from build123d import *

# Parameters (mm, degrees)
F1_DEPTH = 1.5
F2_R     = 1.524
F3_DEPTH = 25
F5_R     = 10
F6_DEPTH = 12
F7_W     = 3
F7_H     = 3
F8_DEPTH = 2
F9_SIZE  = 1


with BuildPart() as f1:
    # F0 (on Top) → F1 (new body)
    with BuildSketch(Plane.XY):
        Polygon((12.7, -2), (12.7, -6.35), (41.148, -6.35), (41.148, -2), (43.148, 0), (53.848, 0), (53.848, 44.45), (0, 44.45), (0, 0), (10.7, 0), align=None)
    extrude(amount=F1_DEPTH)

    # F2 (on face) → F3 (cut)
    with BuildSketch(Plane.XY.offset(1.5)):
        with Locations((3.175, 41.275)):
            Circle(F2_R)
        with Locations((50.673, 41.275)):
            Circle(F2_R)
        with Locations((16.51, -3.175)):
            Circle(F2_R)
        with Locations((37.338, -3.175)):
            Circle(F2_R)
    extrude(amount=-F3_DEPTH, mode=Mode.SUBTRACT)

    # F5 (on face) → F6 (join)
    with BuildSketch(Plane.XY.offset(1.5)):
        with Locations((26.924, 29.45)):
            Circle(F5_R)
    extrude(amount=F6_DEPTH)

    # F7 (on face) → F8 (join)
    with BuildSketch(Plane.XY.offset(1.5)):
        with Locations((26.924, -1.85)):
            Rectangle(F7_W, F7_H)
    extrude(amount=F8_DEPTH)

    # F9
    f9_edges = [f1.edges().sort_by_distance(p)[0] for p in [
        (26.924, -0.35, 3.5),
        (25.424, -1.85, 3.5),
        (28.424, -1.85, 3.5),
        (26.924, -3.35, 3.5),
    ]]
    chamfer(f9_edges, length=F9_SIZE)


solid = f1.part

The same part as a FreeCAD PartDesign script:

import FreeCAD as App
import Part
import Sketcher

V = App.Vector


def edges_at(feature, points):
    """Names of the edges that pass closest to the given points."""
    edges = feature.Shape.Edges
    near = lambda p: min(range(len(edges)), key=lambda i: edges[i].distToShape(Part.Vertex(*p))[0])
    return sorted({f"Edge{near(p) + 1}" for p in points})

doc = App.newDocument("Part")
body = doc.addObject("PartDesign::Body", "Body")

# Sketch on XY plane
sketch1 = body.newObject("Sketcher::SketchObject", "Sketch")
sketch1.AttachmentSupport = (doc.getObject("XY_Plane"), [""])
sketch1.MapMode = "FlatFace"
sketch1.addGeometry([
    Part.LineSegment(V(12.7, -2, 0), V(12.7, -6.3, 0)),  # 0
    Part.LineSegment(V(12.7, -6.3, 0), V(41.1, -6.3, 0)),  # 1
    Part.LineSegment(V(41.1, -6.3, 0), V(41.1, -2, 0)),  # 2
    Part.LineSegment(V(41.1, -2, 0), V(43.1, 0, 0)),  # 3
    Part.LineSegment(V(43.1, 0, 0), V(53.8, 0, 0)),  # 4
    Part.LineSegment(V(53.8, 0, 0), V(53.8, 44.5, 0)),  # 5
    Part.LineSegment(V(53.8, 44.5, 0), V(0, 44.5, 0)),  # 6
    Part.LineSegment(V(0, 44.5, 0), V(0, 0, 0)),  # 7
    Part.LineSegment(V(0, 0, 0), V(10.7, 0, 0)),  # 8
    Part.LineSegment(V(10.7, 0, 0), V(12.7, -2, 0)),  # 9
], False)
sketch1.addConstraint([
    Sketcher.Constraint("Coincident", 0, 2, 1, 1),
    Sketcher.Constraint("Coincident", 1, 2, 2, 1),
    Sketcher.Constraint("Coincident", 2, 2, 3, 1),
    Sketcher.Constraint("Coincident", 3, 2, 4, 1),
    Sketcher.Constraint("Coincident", 4, 2, 5, 1),
    Sketcher.Constraint("Coincident", 5, 2, 6, 1),
    Sketcher.Constraint("Coincident", 6, 2, 7, 1),
    Sketcher.Constraint("Coincident", 7, 2, 8, 1),
    Sketcher.Constraint("Coincident", 8, 2, 9, 1),
    Sketcher.Constraint("Coincident", 9, 2, 0, 1),
    Sketcher.Constraint("Vertical", 0),
    Sketcher.Constraint("Horizontal", 1),
    Sketcher.Constraint("Vertical", 2),
    Sketcher.Constraint("Horizontal", 4),
    Sketcher.Constraint("Vertical", 5),
    Sketcher.Constraint("Horizontal", 6),
    Sketcher.Constraint("Vertical", 7),
    Sketcher.Constraint("Horizontal", 8),
    Sketcher.Constraint("Coincident", 7, 2, -1, 1),
    Sketcher.Constraint("PointOnObject", 3, 2, -1),
    Sketcher.Constraint("Perpendicular", 3, 9),
    Sketcher.Constraint("Horizontal", 2, 2, 9, 2),
    Sketcher.Constraint("Equal", 4, 8),
    Sketcher.Constraint("Equal", 3, 9),
    Sketcher.Constraint("DistanceX", 4, 1, 4, 2, 10.7),
    Sketcher.Constraint("DistanceY", 2, 2, -1, 1, 2.0),
    Sketcher.Constraint("DistanceY", 0, 2, 0, 1, 4.35),
    Sketcher.Constraint("DistanceY", 5, 1, 5, 2, 44.45),
    Sketcher.Constraint("DistanceX", 1, 1, 1, 2, 28.448),
])
pad1 = body.newObject("PartDesign::Pad", "Pad")
pad1.Profile = sketch1
pad1.Length = 1.5

# Sketch on XY plane
sketch2 = body.newObject("Sketcher::SketchObject", "Sketch001")
sketch2.AttachmentSupport = (doc.getObject("XY_Plane"), [""])
sketch2.MapMode = "FlatFace"
sketch2.AttachmentOffset = App.Placement(V(0, 0, 1.5), App.Rotation())
sketch2.addGeometry([
    Part.Circle(V(3.2, 41.3, 0), V(0, 0, 1), 1.5),
    Part.Circle(V(50.7, 41.3, 0), V(0, 0, 1), 1.5),
    Part.Circle(V(16.5, -3.2, 0), V(0, 0, 1), 1.5),
    Part.Circle(V(37.3, -3.2, 0), V(0, 0, 1), 1.5),
], False)
sketch2.addConstraint([
    Sketcher.Constraint("Equal", 0, 1),
    Sketcher.Constraint("Equal", 1, 2),
    Sketcher.Constraint("Equal", 2, 3),
    Sketcher.Constraint("Horizontal", 0, 3, 1, 3),
    Sketcher.Constraint("Horizontal", 2, 3, 3, 3),
    Sketcher.Constraint("Diameter", 0, 3.048),
    Sketcher.Constraint("DistanceX", -1, 1, 2, 3, 16.51),
    Sketcher.Constraint("DistanceY", 2, 3, 0, 3, 44.45),
    Sketcher.Constraint("DistanceX", -1, 1, 0, 3, 3.175),
    Sketcher.Constraint("DistanceY", -1, 1, 0, 3, 41.275),
    Sketcher.Constraint("DistanceX", -1, 1, 1, 3, 50.673),
    Sketcher.Constraint("DistanceX", -1, 1, 3, 3, 37.338),
])
pocket1 = body.newObject("PartDesign::Pocket", "Pocket")
pocket1.Profile = sketch2
pocket1.Length = 25

# Sketch on XY plane
sketch3 = body.newObject("Sketcher::SketchObject", "Sketch002")
sketch3.AttachmentSupport = (doc.getObject("XY_Plane"), [""])
sketch3.MapMode = "FlatFace"
sketch3.AttachmentOffset = App.Placement(V(0, 0, 1.5), App.Rotation())
sketch3.addGeometry(Part.Circle(V(27, 29, 0), V(0, 0, 1), 10), False)
sketch3.addConstraint([
    Sketcher.Constraint("Diameter", 0, 20.0),
    Sketcher.Constraint("DistanceY", -1, 1, 0, 3, 29.45),
    Sketcher.Constraint("DistanceX", -1, 1, 0, 3, 26.924),
])
pad2 = body.newObject("PartDesign::Pad", "Pad001")
pad2.Profile = sketch3
pad2.Length = 12

# Sketch on XY plane
sketch4 = body.newObject("Sketcher::SketchObject", "Sketch003")
sketch4.AttachmentSupport = (doc.getObject("XY_Plane"), [""])
sketch4.MapMode = "FlatFace"
sketch4.AttachmentOffset = App.Placement(V(0, 0, 1.5), App.Rotation())
sketch4.addGeometry([
    Part.LineSegment(V(25.4, -0.3, 0), V(25.4, -3.4, 0)),
    Part.LineSegment(V(25.4, -3.4, 0), V(28.4, -3.4, 0)),
    Part.LineSegment(V(28.4, -3.4, 0), V(28.4, -0.3, 0)),
    Part.LineSegment(V(28.4, -0.3, 0), V(25.4, -0.3, 0)),
], False)
sketch4.addConstraint([
    Sketcher.Constraint("Coincident", 0, 2, 1, 1),
    Sketcher.Constraint("Coincident", 1, 2, 2, 1),
    Sketcher.Constraint("Coincident", 2, 2, 3, 1),
    Sketcher.Constraint("Coincident", 3, 2, 0, 1),
    Sketcher.Constraint("Vertical", 0),
    Sketcher.Constraint("Horizontal", 1),
    Sketcher.Constraint("Vertical", 2),
    Sketcher.Constraint("Horizontal", 3),
    Sketcher.Constraint("Equal", 3, 0),
    Sketcher.Constraint("DistanceX", 1, 1, 1, 2, 3.0),
    Sketcher.Constraint("DistanceY", 0, 2, -1, 1, 3.35),
    Sketcher.Constraint("DistanceX", -1, 1, 0, 2, 25.424),
])
pad3 = body.newObject("PartDesign::Pad", "Pad002")
pad3.Profile = sketch4
pad3.Length = 2
doc.recompute()

chamfer = body.newObject("PartDesign::Chamfer", "Chamfer")
chamfer.Base = (pad3, edges_at(pad3, [
    (26.924, -0.35, 3.5),
    (25.424, -1.85, 3.5),
    (28.424, -1.85, 3.5),
    (26.924, -3.35, 3.5),
]))
chamfer.Size = 1

doc.recompute()
